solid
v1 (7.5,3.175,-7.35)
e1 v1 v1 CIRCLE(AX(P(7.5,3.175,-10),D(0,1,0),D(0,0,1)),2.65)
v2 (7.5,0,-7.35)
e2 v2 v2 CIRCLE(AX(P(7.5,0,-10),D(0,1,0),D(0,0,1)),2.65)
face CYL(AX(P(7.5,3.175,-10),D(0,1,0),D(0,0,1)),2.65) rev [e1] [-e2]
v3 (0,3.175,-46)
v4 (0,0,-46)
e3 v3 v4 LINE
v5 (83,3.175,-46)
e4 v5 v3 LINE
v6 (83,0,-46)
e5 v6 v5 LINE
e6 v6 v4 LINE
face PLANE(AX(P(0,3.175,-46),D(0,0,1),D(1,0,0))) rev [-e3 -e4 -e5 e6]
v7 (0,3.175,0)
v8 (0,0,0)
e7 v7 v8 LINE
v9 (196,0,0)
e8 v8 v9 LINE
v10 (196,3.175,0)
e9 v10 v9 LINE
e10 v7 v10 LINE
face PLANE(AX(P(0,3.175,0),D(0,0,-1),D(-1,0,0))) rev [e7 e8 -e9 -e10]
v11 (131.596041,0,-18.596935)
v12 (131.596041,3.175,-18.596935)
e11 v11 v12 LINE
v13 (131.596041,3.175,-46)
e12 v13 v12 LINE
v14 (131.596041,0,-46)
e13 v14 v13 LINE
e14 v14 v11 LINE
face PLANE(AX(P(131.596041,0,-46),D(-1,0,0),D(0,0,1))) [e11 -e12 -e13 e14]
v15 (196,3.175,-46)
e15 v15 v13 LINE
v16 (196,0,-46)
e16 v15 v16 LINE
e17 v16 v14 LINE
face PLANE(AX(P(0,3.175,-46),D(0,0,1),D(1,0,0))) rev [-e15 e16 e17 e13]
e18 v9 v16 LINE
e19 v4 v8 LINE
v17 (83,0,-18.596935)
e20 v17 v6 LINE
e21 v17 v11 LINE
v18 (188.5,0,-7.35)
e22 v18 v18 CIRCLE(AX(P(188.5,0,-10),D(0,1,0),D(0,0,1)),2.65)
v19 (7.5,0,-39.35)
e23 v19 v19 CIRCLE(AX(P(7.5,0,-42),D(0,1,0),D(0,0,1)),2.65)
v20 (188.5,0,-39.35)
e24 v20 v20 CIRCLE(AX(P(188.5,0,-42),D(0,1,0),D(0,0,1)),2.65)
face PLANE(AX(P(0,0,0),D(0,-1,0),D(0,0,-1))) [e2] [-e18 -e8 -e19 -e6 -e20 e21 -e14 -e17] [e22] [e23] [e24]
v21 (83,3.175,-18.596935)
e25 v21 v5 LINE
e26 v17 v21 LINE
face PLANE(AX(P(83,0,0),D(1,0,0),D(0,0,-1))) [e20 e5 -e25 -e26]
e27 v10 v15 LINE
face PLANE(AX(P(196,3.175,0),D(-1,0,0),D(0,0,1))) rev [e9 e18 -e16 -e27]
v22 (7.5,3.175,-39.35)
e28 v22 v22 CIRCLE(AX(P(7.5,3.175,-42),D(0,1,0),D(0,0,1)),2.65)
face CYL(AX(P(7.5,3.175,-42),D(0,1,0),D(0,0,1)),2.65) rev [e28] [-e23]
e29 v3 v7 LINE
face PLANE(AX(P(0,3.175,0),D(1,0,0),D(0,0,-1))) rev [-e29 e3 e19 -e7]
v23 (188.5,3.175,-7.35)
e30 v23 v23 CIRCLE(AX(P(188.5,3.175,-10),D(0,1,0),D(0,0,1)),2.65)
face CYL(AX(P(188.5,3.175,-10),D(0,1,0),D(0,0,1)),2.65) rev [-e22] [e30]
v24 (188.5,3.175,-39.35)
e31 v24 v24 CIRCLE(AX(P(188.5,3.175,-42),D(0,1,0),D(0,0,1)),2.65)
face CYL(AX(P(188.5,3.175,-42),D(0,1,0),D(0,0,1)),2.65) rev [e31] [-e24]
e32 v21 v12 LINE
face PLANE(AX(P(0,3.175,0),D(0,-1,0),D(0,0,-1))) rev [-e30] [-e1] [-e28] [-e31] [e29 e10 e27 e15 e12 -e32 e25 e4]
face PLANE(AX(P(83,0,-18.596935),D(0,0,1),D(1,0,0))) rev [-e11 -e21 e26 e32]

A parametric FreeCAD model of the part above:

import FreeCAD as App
import Part
import Sketcher

V = App.Vector
Q = App.Units.Quantity

doc = App.newDocument("Part")
body = doc.addObject("PartDesign::Body", "Body")

# Sketch on XZ plane
sketch1 = doc.addObject("Sketcher::SketchObject", "Sketch")
body.addObject(sketch1)
sketch1.AttachmentSupport = (doc.XZ_Plane, [""])
sketch1.MapMode = "FlatFace"
sketch1.addGeometry(Part.LineSegment(V(0, -46, 0), V(0, 0, 0)), False)
sketch1.addGeometry(Part.LineSegment(V(0, 0, 0), V(196, 0, 0)), False)
sketch1.addGeometry(Part.LineSegment(V(196, 0, 0), V(196, -46, 0)), False)
sketch1.addGeometry(Part.LineSegment(V(196, -46, 0), V(0, -46, 0)), False)
sketch1.addConstraint(Sketcher.Constraint("Coincident", 0, 2, 1, 1))
sketch1.addConstraint(Sketcher.Constraint("Coincident", 1, 2, 2, 1))
sketch1.addConstraint(Sketcher.Constraint("Coincident", 2, 2, 3, 1))
sketch1.addConstraint(Sketcher.Constraint("Coincident", 3, 2, 0, 1))
sketch1.addConstraint(Sketcher.Constraint("Vertical", 0))
sketch1.addConstraint(Sketcher.Constraint("Horizontal", 1))
sketch1.addConstraint(Sketcher.Constraint("Vertical", 2))
sketch1.addConstraint(Sketcher.Constraint("Horizontal", 3))
sketch1.addConstraint(Sketcher.Constraint("Coincident", 0, 2, -1, 1))
sketch1.addConstraint(Sketcher.Constraint("DistanceX", 1, 1, 1, 2, Q("196 mm")))
sketch1.addConstraint(Sketcher.Constraint("DistanceY", 0, 1, 0, 2, Q("46 mm")))
pad1 = doc.addObject("PartDesign::Pad", "Pad")
body.addObject(pad1)
pad1.Profile = sketch1
pad1.Length = 3.175
pad1.Reversed = True

# Sketch on XZ plane
sketch2 = doc.addObject("Sketcher::SketchObject", "Sketch001")
body.addObject(sketch2)
sketch2.AttachmentSupport = (doc.XZ_Plane, [""])
sketch2.MapMode = "FlatFace"
sketch2.AttachmentOffset = App.Placement(V(0, 0, -3.175), App.Rotation())
sketch2.addGeometry(Part.LineSegment(V(113, -46, 0), V(83, -46, 0)), False)
sketch2.addGeometry(Part.LineSegment(V(83, -46, 0), V(83, -19, 0)), False)
sketch2.addGeometry(Part.LineSegment(V(83, -19, 0), V(132, -19, 0)), False)
sketch2.addGeometry(Part.LineSegment(V(132, -19, 0), V(132, -46, 0)), False)
sketch2.addGeometry(Part.LineSegment(V(132, -46, 0), V(113, -46, 0)), False)
sketch2.addConstraint(Sketcher.Constraint("Coincident", 0, 2, 1, 1))
sketch2.addConstraint(Sketcher.Constraint("Coincident", 1, 2, 2, 1))
sketch2.addConstraint(Sketcher.Constraint("Coincident", 2, 2, 3, 1))
sketch2.addConstraint(Sketcher.Constraint("Coincident", 3, 2, 4, 1))
sketch2.addConstraint(Sketcher.Constraint("Coincident", 4, 2, 0, 1))
sketch2.addConstraint(Sketcher.Constraint("Horizontal", 0))
sketch2.addConstraint(Sketcher.Constraint("Vertical", 1))
sketch2.addConstraint(Sketcher.Constraint("Horizontal", 2))
sketch2.addConstraint(Sketcher.Constraint("Vertical", 3))
sketch2.addConstraint(Sketcher.Constraint("Horizontal", 4))
sketch2.addConstraint(Sketcher.Constraint("DistanceX", 0, 2, 0, 1, Q("30 mm")))
sketch2.addConstraint(Sketcher.Constraint("DistanceX", -1, 1, 0, 2, Q("83 mm")))
sketch2.addConstraint(Sketcher.Constraint("DistanceY", 0, 2, -1, 1, Q("46 mm")))
sketch2.addConstraint(Sketcher.Constraint("DistanceX", 2, 1, 2, 2, Q("48.596041 mm")))
sketch2.addConstraint(Sketcher.Constraint("DistanceY", 1, 1, 1, 2, Q("27.403065 mm")))
pocket1 = doc.addObject("PartDesign::Pocket", "Pocket")
body.addObject(pocket1)
pocket1.Profile = sketch2
pocket1.Length = 3.175
pocket1.Reversed = True

# Sketch on XZ plane
sketch3 = doc.addObject("Sketcher::SketchObject", "Sketch002")
body.addObject(sketch3)
sketch3.AttachmentSupport = (doc.XZ_Plane, [""])
sketch3.MapMode = "FlatFace"
sketch3.AttachmentOffset = App.Placement(V(0, 0, -3.175), App.Rotation())
sketch3.addGeometry(Part.Circle(V(188.5, -10, 0), V(0, 0, 1), 2.6), False)
sketch3.addGeometry(Part.Circle(V(7.5, -10, 0), V(0, 0, 1), 2.6), False)
sketch3.addGeometry(Part.Circle(V(188.5, -42, 0), V(0, 0, 1), 2.6), False)
sketch3.addGeometry(Part.Circle(V(7.5, -42, 0), V(0, 0, 1), 2.6), False)
sketch3.addConstraint(Sketcher.Constraint("Equal", 0, 1))
sketch3.addConstraint(Sketcher.Constraint("Equal", 1, 2))
sketch3.addConstraint(Sketcher.Constraint("Equal", 2, 3))
sketch3.addConstraint(Sketcher.Constraint("Horizontal", 0, 3, 1, 3))
sketch3.addConstraint(Sketcher.Constraint("Horizontal", 2, 3, 3, 3))
sketch3.addConstraint(Sketcher.Constraint("Vertical", 0, 3, 2, 3))
sketch3.addConstraint(Sketcher.Constraint("Vertical", 1, 3, 3, 3))
sketch3.addConstraint(Sketcher.Constraint("Diameter", 0, Q("5.3 mm")))
sketch3.addConstraint(Sketcher.Constraint("DistanceY", 0, 3, -1, 1, Q("10 mm")))
sketch3.addConstraint(Sketcher.Constraint("DistanceY", 2, 3, -1, 1, Q("42 mm")))
sketch3.addConstraint(Sketcher.Constraint("DistanceX", 1, 3, 0, 3, Q("181 mm")))
sketch3.addConstraint(Sketcher.Constraint("DistanceX", -1, 1, 0, 3, Q("188.5 mm")))
doc.recompute()
hole = doc.addObject("PartDesign::Hole", "Hole")
body.addObject(hole)
hole.Profile = sketch3
hole.ThreadType = "None"
hole.Diameter = 5.3
hole.DepthType = "ThroughAll"
hole.Reversed = True

doc.recompute()
